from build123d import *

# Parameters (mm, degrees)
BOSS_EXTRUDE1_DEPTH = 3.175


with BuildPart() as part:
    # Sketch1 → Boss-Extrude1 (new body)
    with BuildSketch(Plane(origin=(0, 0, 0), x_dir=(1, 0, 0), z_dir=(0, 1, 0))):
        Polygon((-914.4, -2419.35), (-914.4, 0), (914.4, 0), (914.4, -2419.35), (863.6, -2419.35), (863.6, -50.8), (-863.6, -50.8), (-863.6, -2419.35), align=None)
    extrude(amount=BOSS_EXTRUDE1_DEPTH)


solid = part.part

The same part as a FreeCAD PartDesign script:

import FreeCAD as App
import Part
import Sketcher

V = App.Vector
Q = App.Units.Quantity

doc = App.newDocument("Part")
body = doc.addObject("PartDesign::Body", "Body")

# Sketch on XZ plane
sketch1 = body.newObject("Sketcher::SketchObject", "Sketch")
sketch1.AttachmentSupport = (doc.getObject("XZ_Plane"), [""])
sketch1.MapMode = "FlatFace"
sketch1.addGeometry(Part.LineSegment(V(-914, 0, 0), V(-914, 2419, 0)), False)
sketch1.addGeometry(Part.LineSegment(V(-914, 2419, 0), V(-864, 2419, 0)), False)
sketch1.addGeometry(Part.LineSegment(V(-864, 2419, 0), V(-864, 51, 0)), False)
sketch1.addGeometry(Part.LineSegment(V(-864, 51, 0), V(864, 51, 0)), False)
sketch1.addGeometry(Part.LineSegment(V(864, 51, 0), V(864, 2419, 0)), False)
sketch1.addGeometry(Part.LineSegment(V(864, 2419, 0), V(914, 2419, 0)), False)
sketch1.addGeometry(Part.LineSegment(V(914, 2419, 0), V(914, 0, 0)), False)
sketch1.addGeometry(Part.LineSegment(V(914, 0, 0), V(-914, 0, 0)), False)
sketch1.addConstraint(Sketcher.Constraint("Coincident", 0, 2, 1, 1))
sketch1.addConstraint(Sketcher.Constraint("Coincident", 1, 2, 2, 1))
sketch1.addConstraint(Sketcher.Constraint("Coincident", 2, 2, 3, 1))
sketch1.addConstraint(Sketcher.Constraint("Coincident", 3, 2, 4, 1))
sketch1.addConstraint(Sketcher.Constraint("Coincident", 4, 2, 5, 1))
sketch1.addConstraint(Sketcher.Constraint("Coincident", 5, 2, 6, 1))
sketch1.addConstraint(Sketcher.Constraint("Coincident", 6, 2, 7, 1))
sketch1.addConstraint(Sketcher.Constraint("Coincident", 7, 2, 0, 1))
sketch1.addConstraint(Sketcher.Constraint("Vertical", 0))
sketch1.addConstraint(Sketcher.Constraint("Horizontal", 1))
sketch1.addConstraint(Sketcher.Constraint("Vertical", 2))
sketch1.addConstraint(Sketcher.Constraint("Horizontal", 3))
sketch1.addConstraint(Sketcher.Constraint("Vertical", 4))
sketch1.addConstraint(Sketcher.Constraint("Horizontal", 5))
sketch1.addConstraint(Sketcher.Constraint("Vertical", 6))
sketch1.addConstraint(Sketcher.Constraint("Horizontal", 7))
sketch1.addConstraint(Sketcher.Constraint("Symmetric", 6, 2, 7, 2, -1, 1))
sketch1.addConstraint(Sketcher.Constraint("Symmetric", 1, 2, 4, 2, -2))
sketch1.addConstraint(Sketcher.Constraint("DistanceX", 1, 1, 1, 2, Q("2 in")))
sketch1.addConstraint(Sketcher.Constraint("DistanceX", 3, 1, 3, 2, Q("68 in")))
sketch1.addConstraint(Sketcher.Constraint("DistanceY", -1, 1, 2, 2, Q("2 in")))
sketch1.addConstraint(Sketcher.Constraint("DistanceY", 0, 1, 0, 2, Q("95.25 in")))
pad1 = body.newObject("PartDesign::Pad", "Pad")
pad1.Profile = sketch1
pad1.Length = Q("0.125 in")
pad1.Reversed = True

doc.recompute()
